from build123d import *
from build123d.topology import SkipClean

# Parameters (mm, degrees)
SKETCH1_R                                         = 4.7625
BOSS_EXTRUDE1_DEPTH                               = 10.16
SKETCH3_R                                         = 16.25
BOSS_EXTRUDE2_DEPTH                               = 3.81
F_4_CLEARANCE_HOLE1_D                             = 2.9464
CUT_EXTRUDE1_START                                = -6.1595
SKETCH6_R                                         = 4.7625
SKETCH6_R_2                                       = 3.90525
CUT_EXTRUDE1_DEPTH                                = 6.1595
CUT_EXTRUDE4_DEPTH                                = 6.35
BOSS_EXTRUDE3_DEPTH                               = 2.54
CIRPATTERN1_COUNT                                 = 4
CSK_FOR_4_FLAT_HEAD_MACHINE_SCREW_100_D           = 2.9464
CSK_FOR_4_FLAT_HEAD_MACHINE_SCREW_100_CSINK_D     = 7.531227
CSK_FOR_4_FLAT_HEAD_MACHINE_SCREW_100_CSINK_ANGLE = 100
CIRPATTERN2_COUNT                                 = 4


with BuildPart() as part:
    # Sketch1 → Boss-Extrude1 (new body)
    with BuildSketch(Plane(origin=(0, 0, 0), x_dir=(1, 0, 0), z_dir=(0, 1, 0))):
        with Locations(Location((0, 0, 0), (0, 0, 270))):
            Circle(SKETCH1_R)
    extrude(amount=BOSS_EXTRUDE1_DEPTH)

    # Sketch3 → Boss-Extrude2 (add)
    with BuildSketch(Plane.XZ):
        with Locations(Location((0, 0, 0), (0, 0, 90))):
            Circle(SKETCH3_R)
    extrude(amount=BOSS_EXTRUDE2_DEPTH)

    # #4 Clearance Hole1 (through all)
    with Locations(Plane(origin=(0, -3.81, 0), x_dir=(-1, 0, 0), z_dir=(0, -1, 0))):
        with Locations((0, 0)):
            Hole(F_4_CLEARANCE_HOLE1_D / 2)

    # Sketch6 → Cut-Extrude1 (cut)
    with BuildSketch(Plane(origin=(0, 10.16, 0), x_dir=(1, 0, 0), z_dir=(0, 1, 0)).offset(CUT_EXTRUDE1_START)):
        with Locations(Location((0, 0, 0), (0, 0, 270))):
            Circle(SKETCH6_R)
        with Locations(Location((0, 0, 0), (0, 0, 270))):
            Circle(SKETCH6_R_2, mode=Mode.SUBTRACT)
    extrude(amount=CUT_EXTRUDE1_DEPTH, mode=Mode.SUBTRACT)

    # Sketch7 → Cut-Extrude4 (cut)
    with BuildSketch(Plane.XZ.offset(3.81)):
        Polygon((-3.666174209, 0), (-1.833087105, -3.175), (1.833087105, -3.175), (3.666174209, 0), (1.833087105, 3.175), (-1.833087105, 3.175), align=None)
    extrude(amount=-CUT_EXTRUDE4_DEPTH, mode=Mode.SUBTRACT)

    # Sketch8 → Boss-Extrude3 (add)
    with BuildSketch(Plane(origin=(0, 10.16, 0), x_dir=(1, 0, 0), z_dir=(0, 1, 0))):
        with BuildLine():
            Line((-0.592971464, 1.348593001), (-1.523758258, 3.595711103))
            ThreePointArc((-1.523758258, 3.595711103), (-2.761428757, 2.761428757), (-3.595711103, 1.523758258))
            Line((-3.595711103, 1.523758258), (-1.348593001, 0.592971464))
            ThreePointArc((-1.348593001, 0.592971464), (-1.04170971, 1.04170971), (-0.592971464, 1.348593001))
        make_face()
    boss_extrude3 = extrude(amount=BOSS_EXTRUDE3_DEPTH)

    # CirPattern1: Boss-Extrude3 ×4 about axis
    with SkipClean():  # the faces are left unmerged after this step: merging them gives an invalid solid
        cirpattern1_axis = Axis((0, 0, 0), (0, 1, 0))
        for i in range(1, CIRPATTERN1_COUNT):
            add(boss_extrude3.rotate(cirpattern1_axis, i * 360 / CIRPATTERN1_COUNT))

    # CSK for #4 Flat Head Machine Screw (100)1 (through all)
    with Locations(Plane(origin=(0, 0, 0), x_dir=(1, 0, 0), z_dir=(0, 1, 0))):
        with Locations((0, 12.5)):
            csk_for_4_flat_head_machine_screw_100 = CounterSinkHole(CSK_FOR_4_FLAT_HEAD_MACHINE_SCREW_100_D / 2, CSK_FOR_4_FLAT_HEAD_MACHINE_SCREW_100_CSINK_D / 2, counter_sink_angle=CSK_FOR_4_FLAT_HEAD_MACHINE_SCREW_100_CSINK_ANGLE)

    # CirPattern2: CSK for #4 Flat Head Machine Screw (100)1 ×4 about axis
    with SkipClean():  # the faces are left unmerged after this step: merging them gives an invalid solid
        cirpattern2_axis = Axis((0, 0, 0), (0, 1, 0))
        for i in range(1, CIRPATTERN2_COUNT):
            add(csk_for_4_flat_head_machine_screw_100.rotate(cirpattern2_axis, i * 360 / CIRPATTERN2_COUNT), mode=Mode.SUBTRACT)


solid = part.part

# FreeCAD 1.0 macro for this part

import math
import FreeCAD as App
import Part
import Sketcher
from FreeCAD import Vector
Q = App.Units.Quantity

doc = App.newDocument("Part")
body = doc.addObject("PartDesign::Body", "Body")

# Sketch on XZ plane
sketch1 = doc.addObject("Sketcher::SketchObject", "Sketch")
body.addObject(sketch1)
sketch1.AttachmentSupport = (doc.XZ_Plane, [""])
sketch1.MapMode = "FlatFace"
sketch1.addGeometry(Part.Circle(Vector(0, 0, 0), Vector(0, 0, 1), 4.8), False)
sketch1.addConstraint([
    Sketcher.Constraint("Coincident", 0, 3, -1, 1),
    Sketcher.Constraint("Diameter", 0, Q("0.375 in")),
])
pad1 = doc.addObject("PartDesign::Pad", "Pad")
body.addObject(pad1)
pad1.Profile = sketch1
pad1.Length = Q("0.4 in")
pad1.Reversed = True

# Sketch on XZ plane
sketch2 = doc.addObject("Sketcher::SketchObject", "Sketch001")
body.addObject(sketch2)
sketch2.AttachmentSupport = (doc.XZ_Plane, [""])
sketch2.MapMode = "FlatFace"
sketch2.addGeometry(Part.Circle(Vector(0, 0, 0), Vector(0, 0, 1), 16), False)
sketch2.addConstraint([
    Sketcher.Constraint("Coincident", 0, 3, -1, 1),
    Sketcher.Constraint("Diameter", 0, 32.5),
])
pad2 = doc.addObject("PartDesign::Pad", "Pad001")
body.addObject(pad2)
pad2.Profile = sketch2
pad2.Length = Q("0.15 in")

# Sketch on XZ plane
sketch3 = doc.addObject("Sketcher::SketchObject", "Sketch002")
body.addObject(sketch3)
sketch3.AttachmentSupport = (doc.XZ_Plane, [""])
sketch3.MapMode = "FlatFace"
sketch3.AttachmentOffset = App.Placement(Vector(0, 0, 0.15 * 25.4), App.Rotation())
sketch3.addGeometry(Part.Circle(Vector(0, 0, 0), Vector(0, 0, 1), 1.5), False)
sketch3.addConstraint([
    Sketcher.Constraint("Coincident", 0, 3, -1, 1),
    Sketcher.Constraint("Diameter", 0, Q("0.116 in")),
])
doc.recompute()
hole = doc.addObject("PartDesign::Hole", "Hole")
body.addObject(hole)
hole.Profile = sketch3
hole.ThreadType = "None"
hole.Diameter = Q("0.116 in")
hole.DepthType = "ThroughAll"

# Sketch on XZ plane
sketch4 = doc.addObject("Sketcher::SketchObject", "Sketch003")
body.addObject(sketch4)
sketch4.AttachmentSupport = (doc.XZ_Plane, [""])
sketch4.MapMode = "FlatFace"
sketch4.AttachmentOffset = App.Placement(Vector(0, 0, -0.1575 * 25.4), App.Rotation())
sketch4.addGeometry([
    Part.Circle(Vector(0, 0, 0), Vector(0, 0, 1), 4.8),
    Part.Circle(Vector(0, 0, 0), Vector(0, 0, 1), 3.9),
], False)
sketch4.addConstraint([
    Sketcher.Constraint("Coincident", 0, 3, -1, 1),
    Sketcher.Constraint("Coincident", 1, 3, -1, 1),
    Sketcher.Constraint("Diameter", 0, Q("0.375 in")),
    Sketcher.Constraint("Diameter", 1, Q("0.3075 in")),
])
pocket1 = doc.addObject("PartDesign::Pocket", "Pocket")
body.addObject(pocket1)
pocket1.Profile = sketch4
pocket1.Length = Q("0.2425 in")

# Sketch on XZ plane
sketch5 = doc.addObject("Sketcher::SketchObject", "Sketch004")
body.addObject(sketch5)
sketch5.AttachmentSupport = (doc.XZ_Plane, [""])
sketch5.MapMode = "FlatFace"
sketch5.AttachmentOffset = App.Placement(Vector(0, 0, 0.15 * 25.4), App.Rotation())
sketch5.addGeometry([
    Part.LineSegment(Vector(-3.7, 0, 0), Vector(-1.8, -3.2, 0)),  # 0
    Part.LineSegment(Vector(-1.8, -3.2, 0), Vector(1.8, -3.2, 0)),  # 1
    Part.LineSegment(Vector(1.8, -3.2, 0), Vector(3.7, 0, 0)),  # 2
    Part.LineSegment(Vector(3.7, 0, 0), Vector(1.8, 3.2, 0)),  # 3
    Part.LineSegment(Vector(1.8, 3.2, 0), Vector(-1.8, 3.2, 0)),  # 4
    Part.LineSegment(Vector(-1.8, 3.2, 0), Vector(-3.7, 0, 0)),  # 5
], False)
sketch5.addConstraint([
    Sketcher.Constraint("Coincident", 0, 2, 1, 1),
    Sketcher.Constraint("Coincident", 1, 2, 2, 1),
    Sketcher.Constraint("Coincident", 2, 2, 3, 1),
    Sketcher.Constraint("Coincident", 3, 2, 4, 1),
    Sketcher.Constraint("Coincident", 4, 2, 5, 1),
    Sketcher.Constraint("Coincident", 5, 2, 0, 1),
    Sketcher.Constraint("Horizontal", 1),
    Sketcher.Constraint("Horizontal", 4),
    Sketcher.Constraint("Symmetric", 0, 2, 3, 2, -1, 1),
    Sketcher.Constraint("Symmetric", 2, 2, 5, 2, -1, 1),
    Sketcher.Constraint("PointOnObject", 2, 2, -1),
    Sketcher.Constraint("Parallel", 2, 5),
    Sketcher.Constraint("Vertical", 1, 2, 3, 2),
    Sketcher.Constraint("Angle", 0, Q("-60 deg")),
    Sketcher.Constraint("DistanceY", 1, 2, 3, 2, Q("0.25 in")),
    Sketcher.Constraint("DistanceX", 1, 1, 1, 2, 3.666174),
])
pocket2 = doc.addObject("PartDesign::Pocket", "Pocket001")
body.addObject(pocket2)
pocket2.Profile = sketch5
pocket2.Length = Q("0.25 in")

# Sketch on XZ plane
sketch6 = doc.addObject("Sketcher::SketchObject", "Sketch005")
body.addObject(sketch6)
sketch6.AttachmentSupport = (doc.XZ_Plane, [""])
sketch6.MapMode = "FlatFace"
sketch6.AttachmentOffset = App.Placement(Vector(0, 0, -0.4 * 25.4), App.Rotation())
sketch6.addGeometry([
    Part.LineSegment(Vector(-0.6, -1.3, 0), Vector(-1.5, -3.6, 0)),
    Part.ArcOfCircle(Part.Circle(Vector(0, 0, 0), Vector(0, 0, 1), 3.9), math.radians(-157), math.radians(-113)),
    Part.LineSegment(Vector(-3.6, -1.5, 0), Vector(-1.3, -0.6, 0)),
    Part.ArcOfCircle(Part.Circle(Vector(0, 0, 0), Vector(0, 0, 1), 1.5), math.radians(-156), math.radians(-114)),
], False)
sketch6.addConstraint([
    Sketcher.Constraint("Coincident", 0, 2, 1, 2),
    Sketcher.Constraint("Coincident", 1, 1, 2, 1),
    Sketcher.Constraint("Coincident", 2, 2, 3, 1),
    Sketcher.Constraint("Coincident", 3, 2, 0, 1),
    Sketcher.Constraint("Coincident", 1, 3, -1, 1),
    Sketcher.Constraint("Coincident", 3, 3, -1, 1),
    Sketcher.Constraint("Equal", 0, 2),
    Sketcher.Constraint("Radius", 3, Q("0.058 in")),
    Sketcher.Constraint("Angle", 0, Q("-112.5 deg")),
    Sketcher.Constraint("Angle", 2, Q("22.5 deg")),
    Sketcher.Constraint("Radius", 1, 3.90525),
    Sketcher.Constraint("DistanceX", 0, 2, -1, 1, 1.523758),
])
pad3 = doc.addObject("PartDesign::Pad", "Pad002")
body.addObject(pad3)
pad3.Profile = sketch6
pad3.Length = Q("0.1 in")
pad3.Reversed = True
doc.recompute()

polarpattern = doc.addObject("PartDesign::PolarPattern", "PolarPattern")
body.addObject(polarpattern)
polarpattern.Originals = [pad3]
polarpattern.Axis = (doc.Y_Axis, [""])
polarpattern.Angle = 360
polarpattern.Occurrences = 4
body.Tip = polarpattern

# Sketch on XZ plane
sketch7 = doc.addObject("Sketcher::SketchObject", "Sketch006")
body.addObject(sketch7)
sketch7.AttachmentSupport = (doc.XZ_Plane, [""])
sketch7.MapMode = "FlatFace"
sketch7.addGeometry(Part.Circle(Vector(0, -12.5, 0), Vector(0, 0, 1), 1.5), False)
sketch7.addConstraint([
    Sketcher.Constraint("PointOnObject", 0, 3, -2),
    Sketcher.Constraint("Diameter", 0, Q("0.116 in")),
    Sketcher.Constraint("DistanceY", 0, 3, -1, 1, 12.5),
])
doc.recompute()
hole2 = doc.addObject("PartDesign::Hole", "Hole001")
body.addObject(hole2)
hole2.Profile = sketch7
hole2.ThreadType = "None"
hole2.Diameter = Q("0.116 in")
hole2.DepthType = "ThroughAll"
hole2.HoleCutType = "Countersink"
hole2.HoleCutDiameter = 7.531227
hole2.HoleCutCountersinkAngle = 100
hole2.Reversed = True
doc.recompute()

polarpattern2 = doc.addObject("PartDesign::PolarPattern", "PolarPattern001")
body.addObject(polarpattern2)
polarpattern2.Originals = [hole2]
polarpattern2.Axis = (doc.Y_Axis, [""])
polarpattern2.Angle = 360
polarpattern2.Occurrences = 4
body.Tip = polarpattern2

doc.recompute()
